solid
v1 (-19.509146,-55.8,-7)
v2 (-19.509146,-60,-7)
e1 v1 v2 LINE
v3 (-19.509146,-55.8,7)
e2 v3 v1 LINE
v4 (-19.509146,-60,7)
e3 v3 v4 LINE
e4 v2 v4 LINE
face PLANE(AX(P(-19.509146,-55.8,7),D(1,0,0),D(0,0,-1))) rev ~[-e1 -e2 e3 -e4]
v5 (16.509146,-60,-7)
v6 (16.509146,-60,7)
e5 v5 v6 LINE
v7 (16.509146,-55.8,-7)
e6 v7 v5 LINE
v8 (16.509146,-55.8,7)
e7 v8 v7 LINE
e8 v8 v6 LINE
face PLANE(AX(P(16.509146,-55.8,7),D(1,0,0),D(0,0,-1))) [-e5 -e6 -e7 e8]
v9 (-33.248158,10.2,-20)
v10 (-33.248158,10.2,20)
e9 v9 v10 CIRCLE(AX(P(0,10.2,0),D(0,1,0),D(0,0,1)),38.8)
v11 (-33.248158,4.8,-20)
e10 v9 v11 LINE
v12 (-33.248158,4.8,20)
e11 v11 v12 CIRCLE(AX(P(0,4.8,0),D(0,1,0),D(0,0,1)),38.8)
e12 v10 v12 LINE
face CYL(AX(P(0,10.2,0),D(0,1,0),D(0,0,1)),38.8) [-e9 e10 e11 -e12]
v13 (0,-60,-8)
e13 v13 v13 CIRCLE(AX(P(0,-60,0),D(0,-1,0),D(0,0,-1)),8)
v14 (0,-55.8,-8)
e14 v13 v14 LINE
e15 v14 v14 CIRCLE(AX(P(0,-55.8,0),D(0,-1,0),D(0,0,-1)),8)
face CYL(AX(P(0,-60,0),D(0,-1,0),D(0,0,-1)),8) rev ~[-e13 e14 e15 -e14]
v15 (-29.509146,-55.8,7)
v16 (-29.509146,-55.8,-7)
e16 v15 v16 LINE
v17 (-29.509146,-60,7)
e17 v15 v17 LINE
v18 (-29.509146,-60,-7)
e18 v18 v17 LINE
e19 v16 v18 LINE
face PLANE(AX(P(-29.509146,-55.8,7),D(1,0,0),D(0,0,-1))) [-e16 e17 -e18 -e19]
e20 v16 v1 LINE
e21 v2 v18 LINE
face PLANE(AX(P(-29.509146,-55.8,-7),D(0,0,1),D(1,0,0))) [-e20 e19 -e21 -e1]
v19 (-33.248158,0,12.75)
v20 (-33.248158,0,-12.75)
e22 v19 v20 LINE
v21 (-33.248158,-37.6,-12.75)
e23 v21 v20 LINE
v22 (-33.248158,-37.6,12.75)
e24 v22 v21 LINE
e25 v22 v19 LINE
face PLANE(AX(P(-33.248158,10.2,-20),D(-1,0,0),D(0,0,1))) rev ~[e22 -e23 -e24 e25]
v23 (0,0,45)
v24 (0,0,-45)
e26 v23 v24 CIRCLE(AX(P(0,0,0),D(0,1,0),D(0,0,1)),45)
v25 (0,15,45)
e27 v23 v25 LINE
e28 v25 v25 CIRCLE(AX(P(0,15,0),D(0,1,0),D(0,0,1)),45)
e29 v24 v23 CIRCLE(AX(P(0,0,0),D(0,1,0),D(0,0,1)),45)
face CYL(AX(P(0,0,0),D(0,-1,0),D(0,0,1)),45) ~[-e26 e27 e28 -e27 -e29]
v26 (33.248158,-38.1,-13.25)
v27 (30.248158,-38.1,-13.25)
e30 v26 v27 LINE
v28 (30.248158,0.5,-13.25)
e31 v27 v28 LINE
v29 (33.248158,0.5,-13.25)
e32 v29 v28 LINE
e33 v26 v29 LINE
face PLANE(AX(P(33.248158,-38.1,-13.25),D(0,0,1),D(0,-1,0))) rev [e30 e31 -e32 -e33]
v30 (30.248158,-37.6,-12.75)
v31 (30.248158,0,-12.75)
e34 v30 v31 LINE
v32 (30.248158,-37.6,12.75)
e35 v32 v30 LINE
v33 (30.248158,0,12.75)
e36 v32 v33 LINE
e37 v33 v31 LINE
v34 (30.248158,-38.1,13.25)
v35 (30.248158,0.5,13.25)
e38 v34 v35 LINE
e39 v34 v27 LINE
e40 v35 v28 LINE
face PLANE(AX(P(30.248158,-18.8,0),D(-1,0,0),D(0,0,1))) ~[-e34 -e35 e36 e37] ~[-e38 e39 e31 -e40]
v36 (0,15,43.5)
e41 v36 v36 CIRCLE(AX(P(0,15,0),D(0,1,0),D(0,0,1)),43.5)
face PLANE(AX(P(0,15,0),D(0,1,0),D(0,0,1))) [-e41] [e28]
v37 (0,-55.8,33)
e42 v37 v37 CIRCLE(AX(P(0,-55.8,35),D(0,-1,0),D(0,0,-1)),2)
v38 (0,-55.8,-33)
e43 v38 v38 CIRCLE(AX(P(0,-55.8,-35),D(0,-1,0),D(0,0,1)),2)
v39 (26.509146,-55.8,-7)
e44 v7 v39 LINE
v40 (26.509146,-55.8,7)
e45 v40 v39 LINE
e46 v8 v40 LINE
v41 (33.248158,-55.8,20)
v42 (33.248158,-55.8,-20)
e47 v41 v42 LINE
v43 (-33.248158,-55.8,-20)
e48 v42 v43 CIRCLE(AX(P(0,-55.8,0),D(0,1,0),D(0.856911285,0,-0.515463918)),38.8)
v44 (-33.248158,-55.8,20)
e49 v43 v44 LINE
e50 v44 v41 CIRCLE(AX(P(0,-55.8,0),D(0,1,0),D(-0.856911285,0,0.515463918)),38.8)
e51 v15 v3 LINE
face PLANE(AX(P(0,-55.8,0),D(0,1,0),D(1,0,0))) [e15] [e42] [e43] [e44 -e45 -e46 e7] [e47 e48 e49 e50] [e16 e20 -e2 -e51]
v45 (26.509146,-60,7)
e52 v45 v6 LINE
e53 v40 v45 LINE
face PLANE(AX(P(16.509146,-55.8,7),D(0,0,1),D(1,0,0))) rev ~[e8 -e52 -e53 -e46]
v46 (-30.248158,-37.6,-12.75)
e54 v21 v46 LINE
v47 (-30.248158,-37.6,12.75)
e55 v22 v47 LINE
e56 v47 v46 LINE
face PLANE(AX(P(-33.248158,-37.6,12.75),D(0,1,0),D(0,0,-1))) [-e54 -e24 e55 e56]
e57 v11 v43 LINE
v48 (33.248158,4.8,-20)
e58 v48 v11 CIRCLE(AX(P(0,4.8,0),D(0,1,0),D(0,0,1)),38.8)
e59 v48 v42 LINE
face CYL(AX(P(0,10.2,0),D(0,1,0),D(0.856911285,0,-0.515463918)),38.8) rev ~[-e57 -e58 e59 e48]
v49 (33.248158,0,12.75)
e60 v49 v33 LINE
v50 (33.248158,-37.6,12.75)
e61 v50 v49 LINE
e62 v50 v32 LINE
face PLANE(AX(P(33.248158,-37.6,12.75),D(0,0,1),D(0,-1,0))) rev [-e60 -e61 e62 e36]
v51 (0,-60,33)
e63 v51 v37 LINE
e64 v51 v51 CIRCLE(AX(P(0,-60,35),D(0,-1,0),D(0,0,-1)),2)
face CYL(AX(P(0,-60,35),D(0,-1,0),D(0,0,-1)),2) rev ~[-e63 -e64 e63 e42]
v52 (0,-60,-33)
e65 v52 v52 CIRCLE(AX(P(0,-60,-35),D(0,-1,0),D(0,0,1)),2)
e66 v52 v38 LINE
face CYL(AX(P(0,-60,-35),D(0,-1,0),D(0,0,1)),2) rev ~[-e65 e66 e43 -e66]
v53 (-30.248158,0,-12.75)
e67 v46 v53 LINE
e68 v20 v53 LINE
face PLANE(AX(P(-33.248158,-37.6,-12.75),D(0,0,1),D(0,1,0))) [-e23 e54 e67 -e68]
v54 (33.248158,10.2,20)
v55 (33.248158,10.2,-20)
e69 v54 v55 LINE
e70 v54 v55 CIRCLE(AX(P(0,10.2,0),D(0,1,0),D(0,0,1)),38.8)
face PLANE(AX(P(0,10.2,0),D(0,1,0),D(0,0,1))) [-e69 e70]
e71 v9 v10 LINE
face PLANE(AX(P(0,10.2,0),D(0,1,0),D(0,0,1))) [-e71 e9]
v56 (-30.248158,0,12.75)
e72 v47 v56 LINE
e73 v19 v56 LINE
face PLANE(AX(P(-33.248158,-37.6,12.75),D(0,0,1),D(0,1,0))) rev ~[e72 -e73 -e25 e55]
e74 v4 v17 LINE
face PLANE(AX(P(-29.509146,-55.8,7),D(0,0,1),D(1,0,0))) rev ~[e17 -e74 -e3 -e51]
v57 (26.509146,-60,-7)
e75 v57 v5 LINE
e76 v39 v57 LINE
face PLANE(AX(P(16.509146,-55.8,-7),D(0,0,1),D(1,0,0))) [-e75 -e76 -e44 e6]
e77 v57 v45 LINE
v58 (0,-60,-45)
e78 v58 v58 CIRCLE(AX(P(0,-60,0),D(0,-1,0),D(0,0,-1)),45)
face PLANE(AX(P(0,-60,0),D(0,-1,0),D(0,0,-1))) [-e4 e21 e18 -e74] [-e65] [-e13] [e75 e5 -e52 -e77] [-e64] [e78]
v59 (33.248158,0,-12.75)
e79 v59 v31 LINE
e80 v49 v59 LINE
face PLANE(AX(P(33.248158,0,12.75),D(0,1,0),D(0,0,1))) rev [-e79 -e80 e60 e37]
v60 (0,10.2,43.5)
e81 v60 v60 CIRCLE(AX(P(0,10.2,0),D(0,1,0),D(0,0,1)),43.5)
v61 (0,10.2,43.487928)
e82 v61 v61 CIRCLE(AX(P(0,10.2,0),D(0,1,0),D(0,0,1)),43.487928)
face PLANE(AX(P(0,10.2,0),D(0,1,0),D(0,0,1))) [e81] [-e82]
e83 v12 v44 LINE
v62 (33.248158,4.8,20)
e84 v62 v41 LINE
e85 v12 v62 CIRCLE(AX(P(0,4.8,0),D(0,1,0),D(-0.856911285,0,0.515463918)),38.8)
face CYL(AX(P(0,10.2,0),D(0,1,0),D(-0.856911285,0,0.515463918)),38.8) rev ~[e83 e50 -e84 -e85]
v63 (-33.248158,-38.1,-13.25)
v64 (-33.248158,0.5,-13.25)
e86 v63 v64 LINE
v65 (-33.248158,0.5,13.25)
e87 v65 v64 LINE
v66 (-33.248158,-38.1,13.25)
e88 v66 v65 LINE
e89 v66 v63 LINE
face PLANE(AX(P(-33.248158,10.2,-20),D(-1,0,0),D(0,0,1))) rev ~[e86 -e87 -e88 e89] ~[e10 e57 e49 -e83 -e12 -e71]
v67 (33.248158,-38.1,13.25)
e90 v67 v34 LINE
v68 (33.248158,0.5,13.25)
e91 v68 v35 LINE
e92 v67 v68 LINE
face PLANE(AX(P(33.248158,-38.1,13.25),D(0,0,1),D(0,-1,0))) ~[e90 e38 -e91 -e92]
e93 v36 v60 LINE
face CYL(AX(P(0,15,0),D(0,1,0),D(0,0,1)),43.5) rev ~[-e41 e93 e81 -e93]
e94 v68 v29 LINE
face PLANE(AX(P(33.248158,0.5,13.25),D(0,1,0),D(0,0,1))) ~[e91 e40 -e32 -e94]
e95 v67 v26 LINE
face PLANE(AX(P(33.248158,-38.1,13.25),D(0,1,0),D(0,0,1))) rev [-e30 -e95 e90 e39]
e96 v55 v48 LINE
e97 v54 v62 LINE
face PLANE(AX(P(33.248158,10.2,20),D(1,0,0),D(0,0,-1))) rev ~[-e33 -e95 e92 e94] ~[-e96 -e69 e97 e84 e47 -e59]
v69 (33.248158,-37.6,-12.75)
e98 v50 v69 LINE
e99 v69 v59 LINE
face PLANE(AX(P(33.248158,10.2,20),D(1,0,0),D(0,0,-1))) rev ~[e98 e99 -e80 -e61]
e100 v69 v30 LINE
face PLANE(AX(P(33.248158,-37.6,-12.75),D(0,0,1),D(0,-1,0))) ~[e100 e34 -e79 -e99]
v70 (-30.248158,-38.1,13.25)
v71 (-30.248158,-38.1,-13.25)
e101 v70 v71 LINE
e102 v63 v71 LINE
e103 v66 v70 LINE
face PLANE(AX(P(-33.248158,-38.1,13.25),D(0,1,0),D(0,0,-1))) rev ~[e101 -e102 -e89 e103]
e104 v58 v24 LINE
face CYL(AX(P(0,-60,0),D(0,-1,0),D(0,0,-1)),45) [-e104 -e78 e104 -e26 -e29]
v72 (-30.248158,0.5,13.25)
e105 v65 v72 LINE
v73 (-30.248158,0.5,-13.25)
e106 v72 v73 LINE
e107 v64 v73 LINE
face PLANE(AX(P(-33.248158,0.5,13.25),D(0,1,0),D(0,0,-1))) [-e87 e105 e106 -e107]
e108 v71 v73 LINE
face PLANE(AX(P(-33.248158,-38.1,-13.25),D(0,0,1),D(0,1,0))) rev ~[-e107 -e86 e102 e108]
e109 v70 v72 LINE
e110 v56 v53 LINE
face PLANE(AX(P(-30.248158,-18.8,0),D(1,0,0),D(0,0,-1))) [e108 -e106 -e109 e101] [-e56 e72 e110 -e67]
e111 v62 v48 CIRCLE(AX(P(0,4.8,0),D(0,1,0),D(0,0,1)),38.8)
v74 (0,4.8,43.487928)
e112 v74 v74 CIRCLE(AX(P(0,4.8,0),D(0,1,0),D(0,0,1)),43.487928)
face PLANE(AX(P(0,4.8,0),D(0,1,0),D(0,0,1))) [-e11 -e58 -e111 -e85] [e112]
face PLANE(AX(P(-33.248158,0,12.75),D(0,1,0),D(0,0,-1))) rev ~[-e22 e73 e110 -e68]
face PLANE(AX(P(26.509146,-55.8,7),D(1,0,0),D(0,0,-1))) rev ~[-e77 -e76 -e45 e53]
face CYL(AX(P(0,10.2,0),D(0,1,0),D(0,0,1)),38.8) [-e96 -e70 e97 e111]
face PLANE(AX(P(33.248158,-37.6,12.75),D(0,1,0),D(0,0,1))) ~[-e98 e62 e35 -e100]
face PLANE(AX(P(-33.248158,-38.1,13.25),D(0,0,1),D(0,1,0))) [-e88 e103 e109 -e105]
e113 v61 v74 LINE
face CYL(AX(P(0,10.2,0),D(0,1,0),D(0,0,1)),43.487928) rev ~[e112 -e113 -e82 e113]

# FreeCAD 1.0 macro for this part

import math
import FreeCAD as App
import Part
import Sketcher

V = App.Vector
Q = App.Units.Quantity


def add_polygon(sketch, points):
    """Adds a closed chain of lines whose ends are joined by coincident constraints."""
    first, n = sketch.GeometryCount, len(points)
    for a, b in zip(points, points[1:] + points[:1]):
        sketch.addGeometry(Part.LineSegment(App.Vector(*a, 0), App.Vector(*b, 0)), False)
    for i in range(n):
        sketch.addConstraint(Sketcher.Constraint("Coincident", first + i, 2, first + (i + 1) % n, 1))

doc = App.newDocument("Part")
body = doc.addObject("PartDesign::Body", "Body")

sketch1 = doc.addObject("Sketcher::SketchObject", "Sketch")
body.addObject(sketch1)
sketch1.AttachmentSupport = (doc.XZ_Plane, [""])
sketch1.MapMode = "FlatFace"
sketch1.addGeometry(Part.Circle(V(0, 0, 0), V(0, 0, 1), 45), False)
sketch1.addConstraint([
    Sketcher.Constraint("Coincident", 0, 3, -1, 1),
    Sketcher.Constraint("Diameter", 0, Q("90 mm")),
])
pad1 = doc.addObject("PartDesign::Pad", "Pad")
body.addObject(pad1)
pad1.Profile = sketch1
pad1.Length = 15
pad1.Reversed = True

sketch2 = doc.addObject("Sketcher::SketchObject", "Sketch001")
body.addObject(sketch2)
sketch2.AttachmentSupport = (doc.XZ_Plane, [""])
sketch2.MapMode = "FlatFace"
sketch2.AttachmentOffset = App.Placement(V(0, 0, -15), App.Rotation())
sketch2.addGeometry(Part.Circle(V(0, 0, 0), V(0, 0, 1), 44), False)
sketch2.addConstraint([
    Sketcher.Constraint("Coincident", 0, 3, -1, 1),
    Sketcher.Constraint("Diameter", 0, Q("87 mm")),
])
pocket1 = doc.addObject("PartDesign::Pocket", "Pocket")
body.addObject(pocket1)
pocket1.Profile = sketch2
pocket1.Length = 4.8
pocket1.Reversed = True

sketch3 = doc.addObject("Sketcher::SketchObject", "Sketch002")
body.addObject(sketch3)
sketch3.AttachmentSupport = (doc.XZ_Plane, [""])
sketch3.MapMode = "FlatFace"
sketch3.AttachmentOffset = App.Placement(V(0, 0, -10.2), App.Rotation())
sketch3.addGeometry([
    Part.Circle(V(0, 0, 0), V(0, 0, 1), 43),
    Part.Circle(V(0, 0, 0), V(0, 0, 1), 39),
], False)
sketch3.addConstraint([
    Sketcher.Constraint("Coincident", 0, 3, -1, 1),
    Sketcher.Constraint("Coincident", 1, 3, -1, 1),
    Sketcher.Constraint("Diameter", 1, Q("77.6 mm")),
    Sketcher.Constraint("Diameter", 0, Q("86.975855 mm")),
])
pocket2 = doc.addObject("PartDesign::Pocket", "Pocket001")
body.addObject(pocket2)
pocket2.Profile = sketch3
pocket2.Length = 5.4
pocket2.Reversed = True

sketch4 = doc.addObject("Sketcher::SketchObject", "Sketch003")
body.addObject(sketch4)
sketch4.AttachmentSupport = (doc.XZ_Plane, [""])
sketch4.MapMode = "FlatFace"
sketch4.AttachmentOffset = App.Placement(V(0, 0, 60), App.Rotation())
sketch4.addGeometry(Part.Circle(V(0, 0, 0), V(0, 0, 1), 45), False)
sketch4.addConstraint([
    Sketcher.Constraint("Coincident", 0, 3, -1, 1),
    Sketcher.Constraint("Diameter", 0, Q("90 mm")),
])
pad2 = doc.addObject("PartDesign::Pad", "Pad001")
body.addObject(pad2)
pad2.Profile = sketch4
pad2.Length = 60
pad2.Reversed = True

sketch5 = doc.addObject("Sketcher::SketchObject", "Sketch004")
body.addObject(sketch5)
sketch5.AttachmentSupport = (doc.XZ_Plane, [""])
sketch5.MapMode = "FlatFace"
sketch5.AttachmentOffset = App.Placement(V(0, 0, 60), App.Rotation())
sketch5.addGeometry(Part.Circle(V(0, 0, 0), V(0, 0, 1), 8), False)
sketch5.addConstraint([
    Sketcher.Constraint("Coincident", 0, 3, -1, 1),
    Sketcher.Constraint("Diameter", 0, Q("16 mm")),
])
pocket3 = doc.addObject("PartDesign::Pocket", "Pocket002")
body.addObject(pocket3)
pocket3.Profile = sketch5
pocket3.Length = 71

sketch6 = doc.addObject("Sketcher::SketchObject", "Sketch005")
body.addObject(sketch6)
sketch6.AttachmentSupport = (doc.XZ_Plane, [""])
sketch6.MapMode = "FlatFace"
sketch6.AttachmentOffset = App.Placement(V(0, 0, -10.2), App.Rotation())
sketch6.addGeometry([
    Part.LineSegment(V(-33, -20, 0), V(-33, 20, 0)),
    Part.ArcOfCircle(Part.Circle(V(0, 0, 0), V(0, 0, 1), 39), math.radians(31), math.radians(149)),
    Part.LineSegment(V(33, 20, 0), V(33, -20, 0)),
    Part.ArcOfCircle(Part.Circle(V(0, 0, 0), V(0, 0, 1), 39), math.radians(-149), math.radians(-31)),
], False)
sketch6.addConstraint([
    Sketcher.Constraint("Coincident", 0, 2, 1, 2),
    Sketcher.Constraint("Coincident", 1, 1, 2, 1),
    Sketcher.Constraint("Coincident", 2, 2, 3, 2),
    Sketcher.Constraint("Coincident", 3, 1, 0, 1),
    Sketcher.Constraint("Vertical", 0),
    Sketcher.Constraint("Vertical", 2),
    Sketcher.Constraint("Coincident", 1, 3, -1, 1),
    Sketcher.Constraint("Coincident", 3, 3, -1, 1),
    Sketcher.Constraint("Equal", 1, 3),
    Sketcher.Constraint("Horizontal", 0, 2, 1, 1),
    Sketcher.Constraint("Radius", 1, Q("38.8 mm")),
    Sketcher.Constraint("DistanceY", 0, 1, 0, 2, Q("40 mm")),
])
pocket4 = doc.addObject("PartDesign::Pocket", "Pocket003")
body.addObject(pocket4)
pocket4.Profile = sketch6
pocket4.Length = 66
pocket4.Reversed = True

sketch7 = doc.addObject("Sketcher::SketchObject", "Sketch006")
body.addObject(sketch7)
sketch7.AttachmentSupport = (doc.YZ_Plane, [""])
sketch7.MapMode = "FlatFace"
sketch7.AttachmentOffset = App.Placement(V(0, 0, -33.248158), App.Rotation())
add_polygon(sketch7, [(0, 13), (-38, 13), (-38, -13), (0, -13)])
add_polygon(sketch7, [(-38, -13), (-38, 13), (0, 13), (0, -13)])
sketch7.addConstraint([
    Sketcher.Constraint("Horizontal", 0),
    Sketcher.Constraint("Vertical", 1),
    Sketcher.Constraint("Horizontal", 2),
    Sketcher.Constraint("Vertical", 3),
    Sketcher.Constraint("Vertical", 4),
    Sketcher.Constraint("Horizontal", 5),
    Sketcher.Constraint("Vertical", 6),
    Sketcher.Constraint("Horizontal", 7),
    Sketcher.Constraint("Symmetric", 5, 2, 6, 2, -1, 1),
    Sketcher.Constraint("DistanceX", 0, 2, 0, 1, Q("38.6 mm")),
    Sketcher.Constraint("DistanceX", 5, 1, 5, 2, Q("37.6 mm")),
    Sketcher.Constraint("DistanceY", 1, 2, 1, 1, Q("26.5 mm")),
    Sketcher.Constraint("DistanceY", 4, 1, 4, 2, Q("25.5 mm")),
    Sketcher.Constraint("DistanceY", 1, 2, 4, 2, Q("26 mm")),
    Sketcher.Constraint("DistanceX", 0, 2, -1, 1, Q("38.1 mm")),
])
pad3 = doc.addObject("PartDesign::Pad", "Pad002")
body.addObject(pad3)
pad3.Profile = sketch7
pad3.Length = 3
doc.recompute()

mirrored = doc.addObject("PartDesign::Mirrored", "Mirrored")
body.addObject(mirrored)
mirrored.Originals = [pad3]
mirrored.MirrorPlane = (doc.YZ_Plane, [""])
body.Tip = mirrored

sketch8 = doc.addObject("Sketcher::SketchObject", "Sketch007")
body.addObject(sketch8)
sketch8.AttachmentSupport = (doc.XZ_Plane, [""])
sketch8.MapMode = "FlatFace"
sketch8.AttachmentOffset = App.Placement(V(0, 0, 55.8), App.Rotation())
add_polygon(sketch8, [(-30, -7), (-30, 7), (-20, 7), (-20, -7)])
add_polygon(sketch8, [(17, -7), (17, 7), (27, 7), (27, -7)])
sketch8.addConstraint([
    Sketcher.Constraint("Vertical", 0),
    Sketcher.Constraint("Horizontal", 1),
    Sketcher.Constraint("Vertical", 2),
    Sketcher.Constraint("Horizontal", 3),
    Sketcher.Constraint("Vertical", 4),
    Sketcher.Constraint("Horizontal", 5),
    Sketcher.Constraint("Vertical", 6),
    Sketcher.Constraint("Horizontal", 7),
    Sketcher.Constraint("Horizontal", 1, 2, 4, 2),
    Sketcher.Constraint("Horizontal", 3, 2, 6, 2),
    Sketcher.Constraint("Equal", 3, 5),
    Sketcher.Constraint("DistanceX", 1, 1, 1, 2, Q("10 mm")),
    Sketcher.Constraint("DistanceY", 0, 1, 0, 2, Q("14 mm")),
    Sketcher.Constraint("DistanceY", -1, 1, 0, 2, Q("7 mm")),
    Sketcher.Constraint("DistanceX", 0, 2, -1, 1, Q("29.509146 mm")),
    Sketcher.Constraint("DistanceX", -1, 1, 4, 2, Q("16.509146 mm")),
])
pocket5 = doc.addObject("PartDesign::Pocket", "Pocket004")
body.addObject(pocket5)
pocket5.Profile = sketch8
pocket5.Length = 10
pocket5.Reversed = True

sketch9 = doc.addObject("Sketcher::SketchObject", "Sketch008")
body.addObject(sketch9)
sketch9.AttachmentSupport = (doc.XZ_Plane, [""])
sketch9.MapMode = "FlatFace"
sketch9.AttachmentOffset = App.Placement(V(0, 0, 60), App.Rotation())
sketch9.addGeometry([
    Part.Circle(V(0, 35, 0), V(0, 0, 1), 2),
    Part.Circle(V(0, -35, 0), V(0, 0, 1), 2),
], False)
sketch9.addConstraint([
    Sketcher.Constraint("Equal", 0, 1),
    Sketcher.Constraint("Symmetric", 0, 3, 1, 3, -1, 1),
    Sketcher.Constraint("PointOnObject", 0, 3, -2),
    Sketcher.Constraint("Diameter", 0, Q("4 mm")),
    Sketcher.Constraint("DistanceY", -1, 1, 0, 3, Q("35 mm")),
])
pocket6 = doc.addObject("PartDesign::Pocket", "Pocket005")
body.addObject(pocket6)
pocket6.Profile = sketch9
pocket6.Length = 10

doc.recompute()
